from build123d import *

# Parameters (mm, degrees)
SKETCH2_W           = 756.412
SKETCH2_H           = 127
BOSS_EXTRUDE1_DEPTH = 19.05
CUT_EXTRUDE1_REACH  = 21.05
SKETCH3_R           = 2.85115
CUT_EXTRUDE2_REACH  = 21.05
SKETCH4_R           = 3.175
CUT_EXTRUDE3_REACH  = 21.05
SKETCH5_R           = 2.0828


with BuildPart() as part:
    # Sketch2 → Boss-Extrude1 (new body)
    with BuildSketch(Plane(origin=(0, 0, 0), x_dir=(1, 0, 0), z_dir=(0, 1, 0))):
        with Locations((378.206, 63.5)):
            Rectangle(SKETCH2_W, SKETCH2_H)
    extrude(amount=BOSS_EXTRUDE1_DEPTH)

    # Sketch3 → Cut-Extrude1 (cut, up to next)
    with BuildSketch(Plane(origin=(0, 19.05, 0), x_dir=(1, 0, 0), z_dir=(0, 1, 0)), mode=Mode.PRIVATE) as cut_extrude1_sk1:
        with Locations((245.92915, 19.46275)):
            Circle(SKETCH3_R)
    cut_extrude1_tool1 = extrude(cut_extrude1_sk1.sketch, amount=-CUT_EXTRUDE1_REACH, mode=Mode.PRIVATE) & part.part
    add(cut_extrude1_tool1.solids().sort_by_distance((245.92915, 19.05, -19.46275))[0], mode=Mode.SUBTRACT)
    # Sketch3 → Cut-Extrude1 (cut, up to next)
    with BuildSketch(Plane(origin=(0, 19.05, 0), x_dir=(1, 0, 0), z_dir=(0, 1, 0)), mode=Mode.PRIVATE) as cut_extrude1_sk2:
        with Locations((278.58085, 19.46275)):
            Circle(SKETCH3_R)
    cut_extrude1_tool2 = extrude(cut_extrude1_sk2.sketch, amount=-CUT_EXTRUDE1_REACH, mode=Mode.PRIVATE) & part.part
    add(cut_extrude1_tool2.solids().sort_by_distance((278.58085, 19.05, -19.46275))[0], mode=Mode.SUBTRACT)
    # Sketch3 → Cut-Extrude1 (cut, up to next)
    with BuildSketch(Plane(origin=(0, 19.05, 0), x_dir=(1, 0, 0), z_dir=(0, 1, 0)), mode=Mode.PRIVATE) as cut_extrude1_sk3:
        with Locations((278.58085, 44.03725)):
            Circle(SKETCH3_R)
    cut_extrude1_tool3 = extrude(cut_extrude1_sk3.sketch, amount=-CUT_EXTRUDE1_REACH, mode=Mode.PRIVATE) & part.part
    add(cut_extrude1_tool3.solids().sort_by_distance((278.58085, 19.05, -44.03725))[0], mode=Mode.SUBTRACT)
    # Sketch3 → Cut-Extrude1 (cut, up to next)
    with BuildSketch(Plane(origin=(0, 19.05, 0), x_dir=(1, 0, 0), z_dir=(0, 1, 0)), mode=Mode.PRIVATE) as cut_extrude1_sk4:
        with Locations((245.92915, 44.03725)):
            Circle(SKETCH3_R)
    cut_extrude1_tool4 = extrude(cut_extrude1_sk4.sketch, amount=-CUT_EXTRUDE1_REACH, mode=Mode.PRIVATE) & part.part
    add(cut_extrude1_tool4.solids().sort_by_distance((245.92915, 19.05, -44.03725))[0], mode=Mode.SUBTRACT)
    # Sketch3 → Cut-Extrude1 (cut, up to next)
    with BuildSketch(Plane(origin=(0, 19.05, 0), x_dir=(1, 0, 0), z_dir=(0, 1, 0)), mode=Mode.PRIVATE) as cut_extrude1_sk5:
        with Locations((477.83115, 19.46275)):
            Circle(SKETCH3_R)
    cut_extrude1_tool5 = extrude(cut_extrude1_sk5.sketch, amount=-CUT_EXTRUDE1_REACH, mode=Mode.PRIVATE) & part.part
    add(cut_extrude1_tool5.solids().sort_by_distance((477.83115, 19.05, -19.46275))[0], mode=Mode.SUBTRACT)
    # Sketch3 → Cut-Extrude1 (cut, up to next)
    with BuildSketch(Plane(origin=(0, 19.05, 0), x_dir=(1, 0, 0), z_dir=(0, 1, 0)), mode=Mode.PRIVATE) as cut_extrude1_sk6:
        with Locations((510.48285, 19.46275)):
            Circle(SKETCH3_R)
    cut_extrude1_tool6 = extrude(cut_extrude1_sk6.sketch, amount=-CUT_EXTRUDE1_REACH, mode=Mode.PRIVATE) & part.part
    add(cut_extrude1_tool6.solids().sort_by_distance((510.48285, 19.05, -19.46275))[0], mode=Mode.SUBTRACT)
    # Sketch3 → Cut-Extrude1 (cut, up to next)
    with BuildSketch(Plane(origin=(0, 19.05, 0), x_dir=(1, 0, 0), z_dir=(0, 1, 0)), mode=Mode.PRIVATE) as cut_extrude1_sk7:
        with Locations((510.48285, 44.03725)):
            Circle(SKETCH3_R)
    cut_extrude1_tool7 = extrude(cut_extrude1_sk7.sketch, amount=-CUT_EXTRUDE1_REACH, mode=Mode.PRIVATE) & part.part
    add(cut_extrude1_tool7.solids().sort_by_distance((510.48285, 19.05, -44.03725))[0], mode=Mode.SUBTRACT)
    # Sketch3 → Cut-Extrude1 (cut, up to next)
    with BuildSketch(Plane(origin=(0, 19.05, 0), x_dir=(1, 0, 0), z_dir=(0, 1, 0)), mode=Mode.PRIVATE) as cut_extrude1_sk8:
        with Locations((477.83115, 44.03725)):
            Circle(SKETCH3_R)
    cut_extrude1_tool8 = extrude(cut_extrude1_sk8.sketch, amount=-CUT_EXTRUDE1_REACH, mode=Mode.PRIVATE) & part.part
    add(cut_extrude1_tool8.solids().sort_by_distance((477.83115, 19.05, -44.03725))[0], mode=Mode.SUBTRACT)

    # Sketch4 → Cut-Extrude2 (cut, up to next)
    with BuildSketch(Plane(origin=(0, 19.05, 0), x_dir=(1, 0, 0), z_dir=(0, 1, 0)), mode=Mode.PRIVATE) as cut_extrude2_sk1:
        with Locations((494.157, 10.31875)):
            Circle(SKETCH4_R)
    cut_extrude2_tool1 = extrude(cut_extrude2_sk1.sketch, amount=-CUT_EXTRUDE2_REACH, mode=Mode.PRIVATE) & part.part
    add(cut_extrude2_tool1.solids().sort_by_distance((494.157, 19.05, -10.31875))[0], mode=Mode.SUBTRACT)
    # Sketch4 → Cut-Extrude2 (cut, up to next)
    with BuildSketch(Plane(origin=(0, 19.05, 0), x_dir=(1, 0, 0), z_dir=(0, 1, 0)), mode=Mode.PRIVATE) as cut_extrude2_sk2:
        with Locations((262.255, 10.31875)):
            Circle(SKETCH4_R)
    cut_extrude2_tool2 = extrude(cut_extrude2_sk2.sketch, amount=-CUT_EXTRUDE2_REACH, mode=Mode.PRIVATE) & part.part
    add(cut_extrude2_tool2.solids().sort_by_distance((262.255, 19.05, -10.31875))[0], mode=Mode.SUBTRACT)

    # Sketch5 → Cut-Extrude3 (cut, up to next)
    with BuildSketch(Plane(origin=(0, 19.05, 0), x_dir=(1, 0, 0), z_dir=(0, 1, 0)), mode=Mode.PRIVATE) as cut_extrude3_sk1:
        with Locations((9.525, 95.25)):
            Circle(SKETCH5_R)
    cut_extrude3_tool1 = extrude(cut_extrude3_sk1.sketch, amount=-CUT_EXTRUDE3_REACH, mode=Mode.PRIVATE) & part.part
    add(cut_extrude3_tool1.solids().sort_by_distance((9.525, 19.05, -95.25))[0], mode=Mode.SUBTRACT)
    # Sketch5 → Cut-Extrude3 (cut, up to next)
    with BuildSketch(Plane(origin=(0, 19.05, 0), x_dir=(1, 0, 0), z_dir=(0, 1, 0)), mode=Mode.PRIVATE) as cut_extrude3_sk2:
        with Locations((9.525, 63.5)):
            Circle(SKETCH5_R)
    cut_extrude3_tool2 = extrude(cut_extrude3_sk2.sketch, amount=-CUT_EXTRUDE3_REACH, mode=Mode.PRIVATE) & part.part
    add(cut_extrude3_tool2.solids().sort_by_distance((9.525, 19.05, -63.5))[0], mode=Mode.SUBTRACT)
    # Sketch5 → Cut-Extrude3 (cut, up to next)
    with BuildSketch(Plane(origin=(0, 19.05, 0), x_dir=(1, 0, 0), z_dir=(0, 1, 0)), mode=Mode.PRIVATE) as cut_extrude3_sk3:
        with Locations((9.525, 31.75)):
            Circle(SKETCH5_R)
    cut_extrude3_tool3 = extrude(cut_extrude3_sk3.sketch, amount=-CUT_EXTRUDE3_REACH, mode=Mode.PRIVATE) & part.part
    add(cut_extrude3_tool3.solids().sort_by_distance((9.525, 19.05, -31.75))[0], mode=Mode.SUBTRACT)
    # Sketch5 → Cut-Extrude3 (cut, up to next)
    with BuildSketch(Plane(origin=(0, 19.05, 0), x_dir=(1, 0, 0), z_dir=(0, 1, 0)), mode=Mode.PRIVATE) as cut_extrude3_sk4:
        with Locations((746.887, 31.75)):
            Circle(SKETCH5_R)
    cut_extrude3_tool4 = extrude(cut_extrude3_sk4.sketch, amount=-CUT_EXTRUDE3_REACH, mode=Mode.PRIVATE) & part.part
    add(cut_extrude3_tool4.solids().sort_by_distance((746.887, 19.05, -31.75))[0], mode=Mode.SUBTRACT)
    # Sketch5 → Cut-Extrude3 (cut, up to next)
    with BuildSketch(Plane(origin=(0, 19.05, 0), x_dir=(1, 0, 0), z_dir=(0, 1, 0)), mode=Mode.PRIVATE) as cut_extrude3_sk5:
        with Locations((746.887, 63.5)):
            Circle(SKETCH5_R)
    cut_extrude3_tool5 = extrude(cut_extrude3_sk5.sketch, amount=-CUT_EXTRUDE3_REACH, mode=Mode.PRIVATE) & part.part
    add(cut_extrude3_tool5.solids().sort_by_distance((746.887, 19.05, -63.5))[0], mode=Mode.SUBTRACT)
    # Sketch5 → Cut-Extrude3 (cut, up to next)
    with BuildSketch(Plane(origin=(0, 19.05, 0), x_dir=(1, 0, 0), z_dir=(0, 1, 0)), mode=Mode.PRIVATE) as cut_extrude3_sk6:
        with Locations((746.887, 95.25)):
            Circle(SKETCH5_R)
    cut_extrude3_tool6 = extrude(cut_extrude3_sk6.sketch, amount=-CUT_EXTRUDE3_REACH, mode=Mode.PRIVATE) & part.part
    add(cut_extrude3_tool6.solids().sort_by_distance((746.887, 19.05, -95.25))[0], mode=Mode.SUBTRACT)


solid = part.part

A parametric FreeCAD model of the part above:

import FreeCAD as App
import Part
import Sketcher
Q = App.Units.Quantity


def add_polygon(sketch, points):
    """Adds a closed chain of lines whose ends are joined by coincident constraints."""
    first, n = sketch.GeometryCount, len(points)
    for a, b in zip(points, points[1:] + points[:1]):
        sketch.addGeometry(Part.LineSegment(App.Vector(*a, 0), App.Vector(*b, 0)), False)
    for i in range(n):
        sketch.addConstraint(Sketcher.Constraint("Coincident", first + i, 2, first + (i + 1) % n, 1))

doc = App.newDocument("Part")
body = doc.addObject("PartDesign::Body", "Body")

sketch1 = body.newObject("Sketcher::SketchObject", "Sketch")
sketch1.AttachmentSupport = (doc.getObject("XZ_Plane"), [""])
sketch1.MapMode = "FlatFace"
add_polygon(sketch1, [(0, -127), (0, 0), (756, 0), (756, -127)])
sketch1.addConstraint([
    Sketcher.Constraint("Vertical", 0),
    Sketcher.Constraint("Horizontal", 1),
    Sketcher.Constraint("Vertical", 2),
    Sketcher.Constraint("Horizontal", 3),
    Sketcher.Constraint("Coincident", 0, 2, -1, 1),
    Sketcher.Constraint("DistanceY", 0, 1, 0, 2, Q("5 in")),
    Sketcher.Constraint("DistanceX", 1, 1, 1, 2, Q("29.78 in")),
])
pad1 = body.newObject("PartDesign::Pad", "Pad")
pad1.Profile = sketch1
pad1.Length = Q("0.75 in")
pad1.Reversed = True

sketch2 = body.newObject("Sketcher::SketchObject", "Sketch001")
sketch2.AttachmentSupport = (doc.getObject("XZ_Plane"), [""])
sketch2.MapMode = "FlatFace"
sketch2.AttachmentOffset = App.Placement(App.Vector(0, 0, -0.75 * 25.4), App.Rotation())
sketch2.addGeometry(Part.Circle(App.Vector(245.9, -19.5, 0), App.Vector(0, 0, 1), 2.9), False)
sketch2.addConstraint([
    Sketcher.Constraint("Diameter", 0, Q("0.2245 in")),
    Sketcher.Constraint("DistanceX", -1, 1, 0, 3, Q("245.92915 mm")),
    Sketcher.Constraint("DistanceY", 0, 3, -1, 1, Q("19.46275 mm")),
])
pocket1 = body.newObject("PartDesign::Pocket", "Pocket")
pocket1.Profile = sketch2
pocket1.Type = "UpToFirst"
pocket1.Reversed = True

sketch3 = body.newObject("Sketcher::SketchObject", "Sketch002")
sketch3.AttachmentSupport = (doc.getObject("XZ_Plane"), [""])
sketch3.MapMode = "FlatFace"
sketch3.AttachmentOffset = App.Placement(App.Vector(0, 0, -0.75 * 25.4), App.Rotation())
sketch3.addGeometry(Part.Circle(App.Vector(278.6, -19.5, 0), App.Vector(0, 0, 1), 2.9), False)
sketch3.addConstraint([
    Sketcher.Constraint("Diameter", 0, Q("0.2245 in")),
    Sketcher.Constraint("DistanceX", -1, 1, 0, 3, Q("278.58085 mm")),
    Sketcher.Constraint("DistanceY", 0, 3, -1, 1, Q("19.46275 mm")),
])
pocket2 = body.newObject("PartDesign::Pocket", "Pocket001")
pocket2.Profile = sketch3
pocket2.Type = "UpToFirst"
pocket2.Reversed = True

sketch4 = body.newObject("Sketcher::SketchObject", "Sketch003")
sketch4.AttachmentSupport = (doc.getObject("XZ_Plane"), [""])
sketch4.MapMode = "FlatFace"
sketch4.AttachmentOffset = App.Placement(App.Vector(0, 0, -0.75 * 25.4), App.Rotation())
sketch4.addGeometry(Part.Circle(App.Vector(278.6, -44, 0), App.Vector(0, 0, 1), 2.9), False)
sketch4.addConstraint([
    Sketcher.Constraint("Diameter", 0, Q("0.2245 in")),
    Sketcher.Constraint("DistanceX", -1, 1, 0, 3, Q("278.58085 mm")),
    Sketcher.Constraint("DistanceY", 0, 3, -1, 1, Q("44.03725 mm")),
])
pocket3 = body.newObject("PartDesign::Pocket", "Pocket002")
pocket3.Profile = sketch4
pocket3.Type = "UpToFirst"
pocket3.Reversed = True

sketch5 = body.newObject("Sketcher::SketchObject", "Sketch004")
sketch5.AttachmentSupport = (doc.getObject("XZ_Plane"), [""])
sketch5.MapMode = "FlatFace"
sketch5.AttachmentOffset = App.Placement(App.Vector(0, 0, -0.75 * 25.4), App.Rotation())
sketch5.addGeometry(Part.Circle(App.Vector(245.9, -44, 0), App.Vector(0, 0, 1), 2.9), False)
sketch5.addConstraint([
    Sketcher.Constraint("Diameter", 0, Q("0.2245 in")),
    Sketcher.Constraint("DistanceX", -1, 1, 0, 3, Q("245.92915 mm")),
    Sketcher.Constraint("DistanceY", 0, 3, -1, 1, Q("44.03725 mm")),
])
pocket4 = body.newObject("PartDesign::Pocket", "Pocket003")
pocket4.Profile = sketch5
pocket4.Type = "UpToFirst"
pocket4.Reversed = True

sketch6 = body.newObject("Sketcher::SketchObject", "Sketch005")
sketch6.AttachmentSupport = (doc.getObject("XZ_Plane"), [""])
sketch6.MapMode = "FlatFace"
sketch6.AttachmentOffset = App.Placement(App.Vector(0, 0, -0.75 * 25.4), App.Rotation())
sketch6.addGeometry(Part.Circle(App.Vector(477.8, -19.5, 0), App.Vector(0, 0, 1), 2.9), False)
sketch6.addConstraint([
    Sketcher.Constraint("Diameter", 0, Q("0.2245 in")),
    Sketcher.Constraint("DistanceX", -1, 1, 0, 3, Q("477.83115 mm")),
    Sketcher.Constraint("DistanceY", 0, 3, -1, 1, Q("19.46275 mm")),
])
pocket5 = body.newObject("PartDesign::Pocket", "Pocket004")
pocket5.Profile = sketch6
pocket5.Type = "UpToFirst"
pocket5.Reversed = True

sketch7 = body.newObject("Sketcher::SketchObject", "Sketch006")
sketch7.AttachmentSupport = (doc.getObject("XZ_Plane"), [""])
sketch7.MapMode = "FlatFace"
sketch7.AttachmentOffset = App.Placement(App.Vector(0, 0, -0.75 * 25.4), App.Rotation())
sketch7.addGeometry(Part.Circle(App.Vector(510.5, -19.5, 0), App.Vector(0, 0, 1), 2.9), False)
sketch7.addConstraint([
    Sketcher.Constraint("Diameter", 0, Q("0.2245 in")),
    Sketcher.Constraint("DistanceX", -1, 1, 0, 3, Q("510.48285 mm")),
    Sketcher.Constraint("DistanceY", 0, 3, -1, 1, Q("19.46275 mm")),
])
pocket6 = body.newObject("PartDesign::Pocket", "Pocket005")
pocket6.Profile = sketch7
pocket6.Type = "UpToFirst"
pocket6.Reversed = True

sketch8 = body.newObject("Sketcher::SketchObject", "Sketch007")
sketch8.AttachmentSupport = (doc.getObject("XZ_Plane"), [""])
sketch8.MapMode = "FlatFace"
sketch8.AttachmentOffset = App.Placement(App.Vector(0, 0, -0.75 * 25.4), App.Rotation())
sketch8.addGeometry(Part.Circle(App.Vector(510.5, -44, 0), App.Vector(0, 0, 1), 2.9), False)
sketch8.addConstraint([
    Sketcher.Constraint("Diameter", 0, Q("0.2245 in")),
    Sketcher.Constraint("DistanceX", -1, 1, 0, 3, Q("510.48285 mm")),
    Sketcher.Constraint("DistanceY", 0, 3, -1, 1, Q("44.03725 mm")),
])
pocket7 = body.newObject("PartDesign::Pocket", "Pocket006")
pocket7.Profile = sketch8
pocket7.Type = "UpToFirst"
pocket7.Reversed = True

sketch9 = body.newObject("Sketcher::SketchObject", "Sketch008")
sketch9.AttachmentSupport = (doc.getObject("XZ_Plane"), [""])
sketch9.MapMode = "FlatFace"
sketch9.AttachmentOffset = App.Placement(App.Vector(0, 0, -0.75 * 25.4), App.Rotation())
sketch9.addGeometry(Part.Circle(App.Vector(477.8, -44, 0), App.Vector(0, 0, 1), 2.9), False)
sketch9.addConstraint([
    Sketcher.Constraint("Diameter", 0, Q("0.2245 in")),
    Sketcher.Constraint("DistanceX", -1, 1, 0, 3, Q("477.83115 mm")),
    Sketcher.Constraint("DistanceY", 0, 3, -1, 1, Q("44.03725 mm")),
])
pocket8 = body.newObject("PartDesign::Pocket", "Pocket007")
pocket8.Profile = sketch9
pocket8.Type = "UpToFirst"
pocket8.Reversed = True

sketch10 = body.newObject("Sketcher::SketchObject", "Sketch009")
sketch10.AttachmentSupport = (doc.getObject("XZ_Plane"), [""])
sketch10.MapMode = "FlatFace"
sketch10.AttachmentOffset = App.Placement(App.Vector(0, 0, -0.75 * 25.4), App.Rotation())
sketch10.addGeometry(Part.Circle(App.Vector(494.2, -10.3, 0), App.Vector(0, 0, 1), 3.2), False)
sketch10.addConstraint([
    Sketcher.Constraint("Diameter", 0, Q("0.25 in")),
    Sketcher.Constraint("DistanceX", -1, 1, 0, 3, Q("19.455 in")),
    Sketcher.Constraint("DistanceY", 0, 3, -1, 1, Q("0.40625 in")),
])
pocket9 = body.newObject("PartDesign::Pocket", "Pocket008")
pocket9.Profile = sketch10
pocket9.Type = "UpToFirst"
pocket9.Reversed = True

sketch11 = body.newObject("Sketcher::SketchObject", "Sketch010")
sketch11.AttachmentSupport = (doc.getObject("XZ_Plane"), [""])
sketch11.MapMode = "FlatFace"
sketch11.AttachmentOffset = App.Placement(App.Vector(0, 0, -0.75 * 25.4), App.Rotation())
sketch11.addGeometry(Part.Circle(App.Vector(262.3, -10.3, 0), App.Vector(0, 0, 1), 3.2), False)
sketch11.addConstraint([
    Sketcher.Constraint("Diameter", 0, Q("0.25 in")),
    Sketcher.Constraint("DistanceX", -1, 1, 0, 3, Q("10.325 in")),
    Sketcher.Constraint("DistanceY", 0, 3, -1, 1, Q("0.40625 in")),
])
pocket10 = body.newObject("PartDesign::Pocket", "Pocket009")
pocket10.Profile = sketch11
pocket10.Type = "UpToFirst"
pocket10.Reversed = True

sketch12 = body.newObject("Sketcher::SketchObject", "Sketch011")
sketch12.AttachmentSupport = (doc.getObject("XZ_Plane"), [""])
sketch12.MapMode = "FlatFace"
sketch12.AttachmentOffset = App.Placement(App.Vector(0, 0, -0.75 * 25.4), App.Rotation())
sketch12.addGeometry(Part.Circle(App.Vector(9.5, -95.2, 0), App.Vector(0, 0, 1), 2.1), False)
sketch12.addConstraint([
    Sketcher.Constraint("Diameter", 0, Q("0.164 in")),
    Sketcher.Constraint("DistanceY", 0, 3, -1, 1, Q("3.75 in")),
    Sketcher.Constraint("DistanceX", -1, 1, 0, 3, Q("0.375 in")),
])
pocket11 = body.newObject("PartDesign::Pocket", "Pocket010")
pocket11.Profile = sketch12
pocket11.Type = "UpToFirst"
pocket11.Reversed = True

sketch13 = body.newObject("Sketcher::SketchObject", "Sketch012")
sketch13.AttachmentSupport = (doc.getObject("XZ_Plane"), [""])
sketch13.MapMode = "FlatFace"
sketch13.AttachmentOffset = App.Placement(App.Vector(0, 0, -0.75 * 25.4), App.Rotation())
sketch13.addGeometry(Part.Circle(App.Vector(9.5, -63.5, 0), App.Vector(0, 0, 1), 2.1), False)
sketch13.addConstraint([
    Sketcher.Constraint("Diameter", 0, Q("0.164 in")),
    Sketcher.Constraint("DistanceY", 0, 3, -1, 1, Q("2.5 in")),
    Sketcher.Constraint("DistanceX", -1, 1, 0, 3, Q("0.375 in")),
])
pocket12 = body.newObject("PartDesign::Pocket", "Pocket011")
pocket12.Profile = sketch13
pocket12.Type = "UpToFirst"
pocket12.Reversed = True

sketch14 = body.newObject("Sketcher::SketchObject", "Sketch013")
sketch14.AttachmentSupport = (doc.getObject("XZ_Plane"), [""])
sketch14.MapMode = "FlatFace"
sketch14.AttachmentOffset = App.Placement(App.Vector(0, 0, -0.75 * 25.4), App.Rotation())
sketch14.addGeometry(Part.Circle(App.Vector(9.5, -31.8, 0), App.Vector(0, 0, 1), 2.1), False)
sketch14.addConstraint([
    Sketcher.Constraint("Diameter", 0, Q("0.164 in")),
    Sketcher.Constraint("DistanceY", 0, 3, -1, 1, Q("1.25 in")),
    Sketcher.Constraint("DistanceX", -1, 1, 0, 3, Q("0.375 in")),
])
pocket13 = body.newObject("PartDesign::Pocket", "Pocket012")
pocket13.Profile = sketch14
pocket13.Type = "UpToFirst"
pocket13.Reversed = True

sketch15 = body.newObject("Sketcher::SketchObject", "Sketch014")
sketch15.AttachmentSupport = (doc.getObject("XZ_Plane"), [""])
sketch15.MapMode = "FlatFace"
sketch15.AttachmentOffset = App.Placement(App.Vector(0, 0, -0.75 * 25.4), App.Rotation())
sketch15.addGeometry(Part.Circle(App.Vector(746.9, -31.8, 0), App.Vector(0, 0, 1), 2.1), False)
sketch15.addConstraint([
    Sketcher.Constraint("Diameter", 0, Q("0.164 in")),
    Sketcher.Constraint("DistanceY", 0, 3, -1, 1, Q("1.25 in")),
    Sketcher.Constraint("DistanceX", -1, 1, 0, 3, Q("29.405 in")),
])
pocket14 = body.newObject("PartDesign::Pocket", "Pocket013")
pocket14.Profile = sketch15
pocket14.Type = "UpToFirst"
pocket14.Reversed = True

sketch16 = body.newObject("Sketcher::SketchObject", "Sketch015")
sketch16.AttachmentSupport = (doc.getObject("XZ_Plane"), [""])
sketch16.MapMode = "FlatFace"
sketch16.AttachmentOffset = App.Placement(App.Vector(0, 0, -0.75 * 25.4), App.Rotation())
sketch16.addGeometry(Part.Circle(App.Vector(746.9, -63.5, 0), App.Vector(0, 0, 1), 2.1), False)
sketch16.addConstraint([
    Sketcher.Constraint("Diameter", 0, Q("0.164 in")),
    Sketcher.Constraint("DistanceY", 0, 3, -1, 1, Q("2.5 in")),
    Sketcher.Constraint("DistanceX", -1, 1, 0, 3, Q("29.405 in")),
])
pocket15 = body.newObject("PartDesign::Pocket", "Pocket014")
pocket15.Profile = sketch16
pocket15.Type = "UpToFirst"
pocket15.Reversed = True

sketch17 = body.newObject("Sketcher::SketchObject", "Sketch016")
sketch17.AttachmentSupport = (doc.getObject("XZ_Plane"), [""])
sketch17.MapMode = "FlatFace"
sketch17.AttachmentOffset = App.Placement(App.Vector(0, 0, -0.75 * 25.4), App.Rotation())
sketch17.addGeometry(Part.Circle(App.Vector(746.9, -95.2, 0), App.Vector(0, 0, 1), 2.1), False)
sketch17.addConstraint([
    Sketcher.Constraint("Diameter", 0, Q("0.164 in")),
    Sketcher.Constraint("DistanceY", 0, 3, -1, 1, Q("3.75 in")),
    Sketcher.Constraint("DistanceX", -1, 1, 0, 3, Q("29.405 in")),
])
pocket16 = body.newObject("PartDesign::Pocket", "Pocket015")
pocket16.Profile = sketch17
pocket16.Type = "UpToFirst"
pocket16.Reversed = True

doc.recompute()
